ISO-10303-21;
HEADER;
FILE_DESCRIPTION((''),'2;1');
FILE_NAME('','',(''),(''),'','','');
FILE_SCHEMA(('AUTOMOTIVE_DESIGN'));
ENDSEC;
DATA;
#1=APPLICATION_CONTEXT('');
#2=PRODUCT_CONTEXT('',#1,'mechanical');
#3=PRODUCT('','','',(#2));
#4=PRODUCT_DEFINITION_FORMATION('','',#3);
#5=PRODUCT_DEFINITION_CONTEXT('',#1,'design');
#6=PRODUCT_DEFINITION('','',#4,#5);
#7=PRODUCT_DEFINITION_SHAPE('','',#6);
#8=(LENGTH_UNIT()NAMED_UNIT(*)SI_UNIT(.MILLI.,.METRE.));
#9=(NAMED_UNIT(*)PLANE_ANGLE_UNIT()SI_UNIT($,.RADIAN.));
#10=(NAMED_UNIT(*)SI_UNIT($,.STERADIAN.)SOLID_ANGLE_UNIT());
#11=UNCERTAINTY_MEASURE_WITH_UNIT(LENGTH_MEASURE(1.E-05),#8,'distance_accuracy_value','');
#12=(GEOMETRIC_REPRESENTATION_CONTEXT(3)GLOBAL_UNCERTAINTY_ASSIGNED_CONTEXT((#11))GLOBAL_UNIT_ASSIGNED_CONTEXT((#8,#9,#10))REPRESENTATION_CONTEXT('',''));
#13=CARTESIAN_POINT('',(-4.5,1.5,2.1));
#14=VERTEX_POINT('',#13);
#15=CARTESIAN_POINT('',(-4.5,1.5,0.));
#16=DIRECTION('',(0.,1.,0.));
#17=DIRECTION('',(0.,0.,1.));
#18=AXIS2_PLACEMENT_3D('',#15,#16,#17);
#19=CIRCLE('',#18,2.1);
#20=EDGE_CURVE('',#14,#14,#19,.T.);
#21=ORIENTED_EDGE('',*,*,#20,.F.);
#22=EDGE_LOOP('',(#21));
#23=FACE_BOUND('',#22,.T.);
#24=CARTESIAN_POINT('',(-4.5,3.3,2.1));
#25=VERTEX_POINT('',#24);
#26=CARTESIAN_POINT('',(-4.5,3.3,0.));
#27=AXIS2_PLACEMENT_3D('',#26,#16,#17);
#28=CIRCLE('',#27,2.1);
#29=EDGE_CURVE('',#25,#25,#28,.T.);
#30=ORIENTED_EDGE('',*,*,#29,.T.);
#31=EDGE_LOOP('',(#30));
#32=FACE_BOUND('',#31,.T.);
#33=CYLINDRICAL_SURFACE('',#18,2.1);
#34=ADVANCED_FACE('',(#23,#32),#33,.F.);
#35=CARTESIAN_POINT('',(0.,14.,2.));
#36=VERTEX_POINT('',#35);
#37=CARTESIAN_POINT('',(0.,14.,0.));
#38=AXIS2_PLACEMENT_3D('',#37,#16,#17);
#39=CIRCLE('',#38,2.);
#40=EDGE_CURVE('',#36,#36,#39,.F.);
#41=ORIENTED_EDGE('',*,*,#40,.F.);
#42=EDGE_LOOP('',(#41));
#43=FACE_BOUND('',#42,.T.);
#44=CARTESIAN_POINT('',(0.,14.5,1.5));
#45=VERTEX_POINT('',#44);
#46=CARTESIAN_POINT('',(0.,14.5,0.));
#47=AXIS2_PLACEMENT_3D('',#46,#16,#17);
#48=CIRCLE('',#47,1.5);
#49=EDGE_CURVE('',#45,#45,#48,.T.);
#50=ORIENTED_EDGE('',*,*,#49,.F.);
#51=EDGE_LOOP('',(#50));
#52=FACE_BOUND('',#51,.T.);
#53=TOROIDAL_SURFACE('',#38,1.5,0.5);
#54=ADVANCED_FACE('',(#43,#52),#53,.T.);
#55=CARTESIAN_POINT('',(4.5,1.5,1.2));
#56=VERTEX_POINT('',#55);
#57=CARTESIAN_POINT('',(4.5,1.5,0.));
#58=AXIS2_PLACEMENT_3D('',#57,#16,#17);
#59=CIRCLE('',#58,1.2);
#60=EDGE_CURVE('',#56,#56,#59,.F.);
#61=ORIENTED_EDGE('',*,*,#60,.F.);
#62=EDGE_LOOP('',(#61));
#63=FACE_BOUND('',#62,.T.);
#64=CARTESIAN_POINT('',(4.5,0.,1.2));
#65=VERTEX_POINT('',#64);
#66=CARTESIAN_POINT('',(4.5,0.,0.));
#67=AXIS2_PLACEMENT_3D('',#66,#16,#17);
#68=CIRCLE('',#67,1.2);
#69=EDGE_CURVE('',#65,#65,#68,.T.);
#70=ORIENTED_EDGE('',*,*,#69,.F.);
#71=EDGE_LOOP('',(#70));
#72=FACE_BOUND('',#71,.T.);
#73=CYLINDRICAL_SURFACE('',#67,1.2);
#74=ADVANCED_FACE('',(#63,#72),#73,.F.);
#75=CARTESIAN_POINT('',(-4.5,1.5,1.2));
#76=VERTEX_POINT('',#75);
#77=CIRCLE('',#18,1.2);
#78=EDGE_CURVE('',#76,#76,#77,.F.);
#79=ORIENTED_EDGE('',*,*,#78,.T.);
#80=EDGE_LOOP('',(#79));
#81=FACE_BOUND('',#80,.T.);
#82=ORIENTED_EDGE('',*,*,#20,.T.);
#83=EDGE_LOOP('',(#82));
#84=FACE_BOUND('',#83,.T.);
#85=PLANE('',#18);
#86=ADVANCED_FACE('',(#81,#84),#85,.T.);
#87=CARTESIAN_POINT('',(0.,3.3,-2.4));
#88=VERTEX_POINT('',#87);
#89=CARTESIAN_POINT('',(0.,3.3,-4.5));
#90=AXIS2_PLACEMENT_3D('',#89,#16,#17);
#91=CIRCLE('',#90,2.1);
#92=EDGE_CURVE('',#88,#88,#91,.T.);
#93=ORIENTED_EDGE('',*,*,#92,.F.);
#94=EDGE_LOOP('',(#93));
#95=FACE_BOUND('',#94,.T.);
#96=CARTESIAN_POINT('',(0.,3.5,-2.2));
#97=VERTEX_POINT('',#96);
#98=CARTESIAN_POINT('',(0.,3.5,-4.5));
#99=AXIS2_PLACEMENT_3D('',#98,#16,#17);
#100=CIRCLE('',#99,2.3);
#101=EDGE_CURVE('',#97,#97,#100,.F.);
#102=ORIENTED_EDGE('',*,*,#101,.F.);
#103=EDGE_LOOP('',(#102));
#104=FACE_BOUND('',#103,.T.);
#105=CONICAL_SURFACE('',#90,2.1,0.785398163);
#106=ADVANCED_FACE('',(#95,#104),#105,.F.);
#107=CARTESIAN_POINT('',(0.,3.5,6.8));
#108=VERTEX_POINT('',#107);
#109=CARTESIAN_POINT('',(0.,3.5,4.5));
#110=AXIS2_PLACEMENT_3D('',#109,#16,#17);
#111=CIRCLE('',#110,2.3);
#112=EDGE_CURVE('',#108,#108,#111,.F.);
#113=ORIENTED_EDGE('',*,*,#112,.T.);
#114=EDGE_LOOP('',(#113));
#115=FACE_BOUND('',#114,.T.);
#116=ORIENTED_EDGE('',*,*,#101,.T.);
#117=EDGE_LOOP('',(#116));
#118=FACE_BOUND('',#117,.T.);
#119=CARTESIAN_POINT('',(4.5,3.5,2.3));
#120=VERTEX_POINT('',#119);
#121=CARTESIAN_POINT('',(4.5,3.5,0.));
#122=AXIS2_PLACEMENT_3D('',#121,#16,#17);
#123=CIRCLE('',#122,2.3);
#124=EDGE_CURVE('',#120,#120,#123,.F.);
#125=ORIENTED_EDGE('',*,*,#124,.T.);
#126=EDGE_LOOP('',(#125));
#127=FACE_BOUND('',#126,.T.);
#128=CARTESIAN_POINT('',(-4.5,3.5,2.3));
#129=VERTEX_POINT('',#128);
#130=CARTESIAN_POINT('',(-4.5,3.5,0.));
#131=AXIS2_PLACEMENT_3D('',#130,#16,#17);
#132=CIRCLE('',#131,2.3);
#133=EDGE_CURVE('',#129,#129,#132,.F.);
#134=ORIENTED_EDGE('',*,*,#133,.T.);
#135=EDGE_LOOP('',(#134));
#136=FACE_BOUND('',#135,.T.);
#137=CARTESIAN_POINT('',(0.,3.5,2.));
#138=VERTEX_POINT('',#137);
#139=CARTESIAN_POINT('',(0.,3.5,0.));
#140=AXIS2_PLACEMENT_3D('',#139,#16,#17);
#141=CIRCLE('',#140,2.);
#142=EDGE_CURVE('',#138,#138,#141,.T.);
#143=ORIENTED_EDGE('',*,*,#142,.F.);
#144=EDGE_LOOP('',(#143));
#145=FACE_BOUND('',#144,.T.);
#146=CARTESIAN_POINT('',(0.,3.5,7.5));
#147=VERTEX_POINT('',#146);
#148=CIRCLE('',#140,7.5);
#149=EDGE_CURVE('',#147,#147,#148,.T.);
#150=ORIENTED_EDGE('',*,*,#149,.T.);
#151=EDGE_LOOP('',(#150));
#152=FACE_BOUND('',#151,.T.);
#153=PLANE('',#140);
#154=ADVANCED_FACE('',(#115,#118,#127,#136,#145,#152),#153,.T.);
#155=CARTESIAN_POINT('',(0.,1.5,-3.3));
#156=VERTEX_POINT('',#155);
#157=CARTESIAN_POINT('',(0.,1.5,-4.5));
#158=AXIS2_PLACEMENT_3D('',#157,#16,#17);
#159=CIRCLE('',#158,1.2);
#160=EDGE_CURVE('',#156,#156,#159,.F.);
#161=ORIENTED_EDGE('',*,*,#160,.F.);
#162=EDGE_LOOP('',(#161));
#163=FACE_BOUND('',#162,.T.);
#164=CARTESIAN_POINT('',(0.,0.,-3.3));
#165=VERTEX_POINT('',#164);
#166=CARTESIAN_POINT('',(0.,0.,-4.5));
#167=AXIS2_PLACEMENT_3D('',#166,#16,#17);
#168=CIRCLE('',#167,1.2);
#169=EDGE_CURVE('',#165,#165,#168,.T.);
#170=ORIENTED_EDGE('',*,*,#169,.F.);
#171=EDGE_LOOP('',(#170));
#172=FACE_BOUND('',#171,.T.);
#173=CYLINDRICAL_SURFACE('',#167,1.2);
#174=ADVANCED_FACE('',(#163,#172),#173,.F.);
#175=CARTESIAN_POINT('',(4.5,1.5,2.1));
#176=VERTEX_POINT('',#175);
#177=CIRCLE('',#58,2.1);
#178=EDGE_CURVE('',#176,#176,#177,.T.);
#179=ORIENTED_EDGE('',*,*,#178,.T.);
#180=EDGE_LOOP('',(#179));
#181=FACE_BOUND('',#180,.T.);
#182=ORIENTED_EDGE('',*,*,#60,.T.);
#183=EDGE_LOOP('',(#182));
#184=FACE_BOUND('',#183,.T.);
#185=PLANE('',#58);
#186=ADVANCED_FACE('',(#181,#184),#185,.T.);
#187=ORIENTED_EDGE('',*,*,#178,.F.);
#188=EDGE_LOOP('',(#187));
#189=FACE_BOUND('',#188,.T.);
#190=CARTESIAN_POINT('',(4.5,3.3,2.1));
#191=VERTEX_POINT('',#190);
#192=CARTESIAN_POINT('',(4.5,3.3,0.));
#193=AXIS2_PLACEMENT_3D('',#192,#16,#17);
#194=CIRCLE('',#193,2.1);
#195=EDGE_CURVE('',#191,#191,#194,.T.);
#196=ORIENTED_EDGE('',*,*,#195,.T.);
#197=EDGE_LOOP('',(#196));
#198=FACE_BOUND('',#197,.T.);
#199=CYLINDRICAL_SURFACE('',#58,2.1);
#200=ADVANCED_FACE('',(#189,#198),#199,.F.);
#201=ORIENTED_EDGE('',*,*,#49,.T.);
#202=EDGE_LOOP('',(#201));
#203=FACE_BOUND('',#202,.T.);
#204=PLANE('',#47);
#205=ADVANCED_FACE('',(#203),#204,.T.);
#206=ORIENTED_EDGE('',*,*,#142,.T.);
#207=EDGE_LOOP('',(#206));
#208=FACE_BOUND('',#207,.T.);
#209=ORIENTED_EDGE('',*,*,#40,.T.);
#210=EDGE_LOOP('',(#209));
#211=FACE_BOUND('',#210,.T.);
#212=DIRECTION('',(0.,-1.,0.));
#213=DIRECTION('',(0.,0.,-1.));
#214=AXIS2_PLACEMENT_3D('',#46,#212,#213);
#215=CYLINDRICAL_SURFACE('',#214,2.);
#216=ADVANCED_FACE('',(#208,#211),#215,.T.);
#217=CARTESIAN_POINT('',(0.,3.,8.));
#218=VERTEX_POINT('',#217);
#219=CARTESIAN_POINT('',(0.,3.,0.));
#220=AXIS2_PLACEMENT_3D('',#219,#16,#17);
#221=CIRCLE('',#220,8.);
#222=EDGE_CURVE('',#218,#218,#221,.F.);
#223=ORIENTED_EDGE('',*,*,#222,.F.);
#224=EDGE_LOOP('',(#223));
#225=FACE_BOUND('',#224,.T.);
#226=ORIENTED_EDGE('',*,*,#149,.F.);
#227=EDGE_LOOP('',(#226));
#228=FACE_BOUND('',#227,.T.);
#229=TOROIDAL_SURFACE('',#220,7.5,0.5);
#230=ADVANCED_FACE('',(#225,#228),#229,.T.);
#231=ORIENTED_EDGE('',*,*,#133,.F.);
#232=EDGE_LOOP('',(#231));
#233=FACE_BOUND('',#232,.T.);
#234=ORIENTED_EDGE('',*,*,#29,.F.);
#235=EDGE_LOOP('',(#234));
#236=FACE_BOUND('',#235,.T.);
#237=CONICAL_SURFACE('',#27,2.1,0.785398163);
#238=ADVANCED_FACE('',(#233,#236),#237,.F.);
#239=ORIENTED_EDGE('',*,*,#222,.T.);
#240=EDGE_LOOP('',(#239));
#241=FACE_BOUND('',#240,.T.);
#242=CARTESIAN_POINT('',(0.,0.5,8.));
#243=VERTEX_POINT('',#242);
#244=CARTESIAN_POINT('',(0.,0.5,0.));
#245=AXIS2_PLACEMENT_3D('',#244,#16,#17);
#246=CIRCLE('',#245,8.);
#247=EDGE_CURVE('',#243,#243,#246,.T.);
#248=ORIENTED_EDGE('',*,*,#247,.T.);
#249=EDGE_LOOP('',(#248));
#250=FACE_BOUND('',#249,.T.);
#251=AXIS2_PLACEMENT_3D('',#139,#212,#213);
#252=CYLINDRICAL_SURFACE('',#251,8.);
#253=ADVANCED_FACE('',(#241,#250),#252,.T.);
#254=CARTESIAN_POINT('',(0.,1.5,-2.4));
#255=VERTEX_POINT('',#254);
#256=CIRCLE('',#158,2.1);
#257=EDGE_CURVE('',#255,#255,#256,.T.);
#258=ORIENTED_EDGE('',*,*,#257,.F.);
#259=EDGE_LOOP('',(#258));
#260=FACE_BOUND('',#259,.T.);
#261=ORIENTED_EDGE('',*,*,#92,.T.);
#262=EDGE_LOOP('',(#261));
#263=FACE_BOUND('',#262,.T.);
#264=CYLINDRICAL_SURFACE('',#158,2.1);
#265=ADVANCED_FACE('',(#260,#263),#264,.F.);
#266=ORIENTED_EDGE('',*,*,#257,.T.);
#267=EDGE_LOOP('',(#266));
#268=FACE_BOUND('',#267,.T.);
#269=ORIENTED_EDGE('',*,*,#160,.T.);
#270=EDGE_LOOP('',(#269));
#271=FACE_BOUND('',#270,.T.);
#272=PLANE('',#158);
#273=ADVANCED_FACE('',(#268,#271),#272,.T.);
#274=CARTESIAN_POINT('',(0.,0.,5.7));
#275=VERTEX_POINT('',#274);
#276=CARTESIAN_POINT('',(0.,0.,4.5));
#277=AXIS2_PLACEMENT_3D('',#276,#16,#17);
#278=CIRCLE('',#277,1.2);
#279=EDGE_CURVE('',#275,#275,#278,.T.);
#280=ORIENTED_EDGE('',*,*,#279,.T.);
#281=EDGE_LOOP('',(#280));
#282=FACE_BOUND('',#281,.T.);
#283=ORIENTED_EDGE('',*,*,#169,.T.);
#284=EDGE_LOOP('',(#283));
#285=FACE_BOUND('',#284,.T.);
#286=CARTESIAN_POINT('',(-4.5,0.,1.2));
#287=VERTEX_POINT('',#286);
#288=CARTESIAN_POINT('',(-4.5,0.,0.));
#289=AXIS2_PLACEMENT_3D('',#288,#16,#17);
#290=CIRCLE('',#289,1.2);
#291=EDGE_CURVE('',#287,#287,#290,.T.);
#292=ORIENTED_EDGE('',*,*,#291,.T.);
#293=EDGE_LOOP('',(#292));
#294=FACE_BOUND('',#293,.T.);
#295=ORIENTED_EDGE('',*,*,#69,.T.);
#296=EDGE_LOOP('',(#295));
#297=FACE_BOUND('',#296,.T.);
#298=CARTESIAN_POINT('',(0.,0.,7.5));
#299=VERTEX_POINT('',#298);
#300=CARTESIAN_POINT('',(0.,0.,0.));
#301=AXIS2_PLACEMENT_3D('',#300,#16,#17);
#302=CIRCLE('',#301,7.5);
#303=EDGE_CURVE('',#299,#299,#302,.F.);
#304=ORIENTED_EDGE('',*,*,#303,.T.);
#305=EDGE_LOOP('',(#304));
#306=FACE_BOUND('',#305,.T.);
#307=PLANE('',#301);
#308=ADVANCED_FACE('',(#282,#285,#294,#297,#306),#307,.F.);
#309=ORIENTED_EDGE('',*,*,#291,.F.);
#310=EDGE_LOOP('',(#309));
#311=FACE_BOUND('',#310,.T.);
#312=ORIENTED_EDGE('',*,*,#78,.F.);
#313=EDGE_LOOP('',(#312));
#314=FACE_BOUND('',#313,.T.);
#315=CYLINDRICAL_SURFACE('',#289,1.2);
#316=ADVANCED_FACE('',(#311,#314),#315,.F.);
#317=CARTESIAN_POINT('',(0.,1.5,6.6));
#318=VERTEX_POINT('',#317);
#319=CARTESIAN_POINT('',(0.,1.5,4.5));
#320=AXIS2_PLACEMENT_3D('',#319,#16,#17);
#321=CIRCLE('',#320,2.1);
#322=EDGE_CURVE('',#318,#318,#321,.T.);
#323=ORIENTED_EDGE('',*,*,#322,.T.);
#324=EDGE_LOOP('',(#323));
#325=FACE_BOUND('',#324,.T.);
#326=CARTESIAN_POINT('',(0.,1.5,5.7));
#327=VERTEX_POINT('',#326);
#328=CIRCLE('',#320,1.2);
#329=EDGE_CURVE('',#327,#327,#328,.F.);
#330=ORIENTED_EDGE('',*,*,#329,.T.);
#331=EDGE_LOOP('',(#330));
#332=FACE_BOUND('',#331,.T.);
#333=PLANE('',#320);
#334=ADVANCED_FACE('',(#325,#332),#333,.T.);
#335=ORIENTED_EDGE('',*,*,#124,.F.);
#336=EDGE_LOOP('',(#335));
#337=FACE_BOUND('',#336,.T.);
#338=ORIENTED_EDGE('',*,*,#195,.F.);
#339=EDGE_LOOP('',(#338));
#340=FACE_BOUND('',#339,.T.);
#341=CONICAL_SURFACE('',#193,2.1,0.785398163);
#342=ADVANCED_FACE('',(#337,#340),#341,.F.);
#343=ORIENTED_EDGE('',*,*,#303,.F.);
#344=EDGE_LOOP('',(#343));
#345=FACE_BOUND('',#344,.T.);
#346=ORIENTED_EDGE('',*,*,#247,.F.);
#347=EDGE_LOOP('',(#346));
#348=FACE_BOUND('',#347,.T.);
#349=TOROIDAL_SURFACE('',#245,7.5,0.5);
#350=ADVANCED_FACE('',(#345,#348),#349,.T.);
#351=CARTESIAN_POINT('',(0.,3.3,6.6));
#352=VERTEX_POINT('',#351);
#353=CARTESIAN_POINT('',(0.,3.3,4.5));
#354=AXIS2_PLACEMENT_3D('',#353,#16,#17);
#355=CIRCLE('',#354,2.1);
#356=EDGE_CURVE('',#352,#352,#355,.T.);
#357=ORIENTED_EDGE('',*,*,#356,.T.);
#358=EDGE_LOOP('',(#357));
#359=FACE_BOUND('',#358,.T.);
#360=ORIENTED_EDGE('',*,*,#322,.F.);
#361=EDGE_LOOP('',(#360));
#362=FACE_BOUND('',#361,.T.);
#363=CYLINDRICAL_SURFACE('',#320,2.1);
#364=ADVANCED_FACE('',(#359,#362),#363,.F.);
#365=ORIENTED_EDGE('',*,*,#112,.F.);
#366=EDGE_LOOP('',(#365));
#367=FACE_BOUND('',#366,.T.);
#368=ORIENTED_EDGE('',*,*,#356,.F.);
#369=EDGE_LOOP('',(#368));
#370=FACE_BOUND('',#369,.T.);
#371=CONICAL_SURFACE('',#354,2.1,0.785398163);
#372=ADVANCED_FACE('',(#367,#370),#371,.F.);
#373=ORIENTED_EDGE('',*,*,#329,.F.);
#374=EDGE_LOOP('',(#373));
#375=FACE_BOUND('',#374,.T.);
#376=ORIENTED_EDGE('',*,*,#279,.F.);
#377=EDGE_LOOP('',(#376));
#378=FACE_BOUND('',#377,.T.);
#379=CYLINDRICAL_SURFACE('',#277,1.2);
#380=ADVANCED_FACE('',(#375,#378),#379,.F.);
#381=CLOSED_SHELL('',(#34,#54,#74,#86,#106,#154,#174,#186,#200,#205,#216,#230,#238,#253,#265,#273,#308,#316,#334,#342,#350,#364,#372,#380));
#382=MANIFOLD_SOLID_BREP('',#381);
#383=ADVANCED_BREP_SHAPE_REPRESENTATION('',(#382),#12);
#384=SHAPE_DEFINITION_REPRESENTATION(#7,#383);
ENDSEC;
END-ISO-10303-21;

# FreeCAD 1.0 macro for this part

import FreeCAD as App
import Part
import Sketcher
from FreeCAD import Vector
Q = App.Units.Quantity


def edges_at(feature, points):
    """Names of the edges that pass closest to the given points."""
    edges = feature.Shape.Edges
    near = lambda p: min(range(len(edges)), key=lambda i: edges[i].distToShape(Part.Vertex(*p))[0])
    return sorted({f"Edge{near(p) + 1}" for p in points})

doc = App.newDocument("Part")
params = doc.addObject("Spreadsheet::Sheet", "Params")
for row, (alias, value) in enumerate([
    ("sketch1_diameter", "16 mm"),
    ("pad1_length", "3.5 mm"),
    ("sketch2_diameter", "4 mm"),
    ("pad2_length", "11 mm"),
    ("sketch3_diameter", "2.4 mm"),
    ("sketch4_diameter", "4.2 mm"),
    ("pocket2_length", "2 mm"),
    ("chamfer_size", "0.2 mm"),
    ("fillet_radius", "0.5 mm"),
    ("fillet2_radius", "0.5 mm"),
], start=1):
    params.set(f"A{row}", alias)
    params.set(f"B{row}", "=" + value)
    params.setAlias(f"B{row}", alias)

body = doc.addObject("PartDesign::Body", "Body")

sketch1 = body.newObject("Sketcher::SketchObject", "Sketch")
sketch1.AttachmentSupport = (doc.getObject("XZ_Plane"), [""])
sketch1.MapMode = "FlatFace"
sketch1.addGeometry(Part.Circle(Vector(0, 0, 0), Vector(0, 0, 1), 8), False)
sketch1.addConstraint([
    Sketcher.Constraint("Coincident", 0, 3, -1, 1),
    Sketcher.Constraint("Diameter", 0, Q("16 mm")),
])
sketch1.setExpression("Constraints[1]", "Params.sketch1_diameter")
pad1 = body.newObject("PartDesign::Pad", "Pad")
pad1.Profile = sketch1
pad1.setExpression("Length", "Params.pad1_length")
pad1.Reversed = True

sketch2 = body.newObject("Sketcher::SketchObject", "Sketch001")
sketch2.AttachmentSupport = (doc.getObject("XZ_Plane"), [""])
sketch2.MapMode = "FlatFace"
sketch2.AttachmentOffset = App.Placement(Vector(0, 0, -3.5), App.Rotation())
sketch2.addGeometry(Part.Circle(Vector(0, 0, 0), Vector(0, 0, 1), 2), False)
sketch2.addConstraint([
    Sketcher.Constraint("Coincident", 0, 3, -1, 1),
    Sketcher.Constraint("Diameter", 0, Q("4 mm")),
])
sketch2.setExpression("Constraints[1]", "Params.sketch2_diameter")
pad2 = body.newObject("PartDesign::Pad", "Pad001")
pad2.Profile = sketch2
pad2.setExpression("Length", "Params.pad2_length")
pad2.Reversed = True

sketch3 = body.newObject("Sketcher::SketchObject", "Sketch002")
sketch3.AttachmentSupport = (doc.getObject("XZ_Plane"), [""])
sketch3.MapMode = "FlatFace"
sketch3.AttachmentOffset = App.Placement(Vector(0, 0, -3.5), App.Rotation())
sketch3.addGeometry([
    Part.Circle(Vector(0, -4.5, 0), Vector(0, 0, 1), 1.2),
    Part.Circle(Vector(4.5, 0, 0), Vector(0, 0, 1), 1.2),
    Part.Circle(Vector(0, 4.5, 0), Vector(0, 0, 1), 1.2),
    Part.Circle(Vector(-4.5, 0, 0), Vector(0, 0, 1), 1.2),
], False)
sketch3.addConstraint([
    Sketcher.Constraint("Equal", 0, 1),
    Sketcher.Constraint("Equal", 1, 2),
    Sketcher.Constraint("Equal", 2, 3),
    Sketcher.Constraint("Symmetric", 0, 3, 2, 3, -1, 1),
    Sketcher.Constraint("Symmetric", 1, 3, 3, 3, -1, 1),
    Sketcher.Constraint("PointOnObject", 0, 3, -2),
    Sketcher.Constraint("PointOnObject", 1, 3, -1),
    Sketcher.Constraint("Diameter", 0, Q("2.4 mm")),
    Sketcher.Constraint("DistanceY", 0, 3, 2, 3, Q("9 mm")),
    Sketcher.Constraint("DistanceX", 3, 3, 1, 3, Q("9 mm")),
])
sketch3.setExpression("Constraints[7]", "Params.sketch3_diameter")
pocket1 = body.newObject("PartDesign::Pocket", "Pocket")
pocket1.Profile = sketch3
pocket1.Type = "ThroughAll"
pocket1.Reversed = True

sketch4 = body.newObject("Sketcher::SketchObject", "Sketch003")
sketch4.AttachmentSupport = (doc.getObject("XZ_Plane"), [""])
sketch4.MapMode = "FlatFace"
sketch4.AttachmentOffset = App.Placement(Vector(0, 0, -3.5), App.Rotation())
sketch4.addGeometry([
    Part.Circle(Vector(0, -4.5, 0), Vector(0, 0, 1), 2.1),
    Part.Circle(Vector(4.5, 0, 0), Vector(0, 0, 1), 2.1),
    Part.Circle(Vector(0, 4.5, 0), Vector(0, 0, 1), 2.1),
    Part.Circle(Vector(-4.5, 0, 0), Vector(0, 0, 1), 2.1),
], False)
sketch4.addConstraint([
    Sketcher.Constraint("Equal", 0, 1),
    Sketcher.Constraint("Equal", 1, 2),
    Sketcher.Constraint("Equal", 2, 3),
    Sketcher.Constraint("Symmetric", 0, 3, 2, 3, -1, 1),
    Sketcher.Constraint("Symmetric", 1, 3, 3, 3, -1, 1),
    Sketcher.Constraint("PointOnObject", 0, 3, -2),
    Sketcher.Constraint("PointOnObject", 1, 3, -1),
    Sketcher.Constraint("Diameter", 0, Q("4.2 mm")),
    Sketcher.Constraint("DistanceY", 0, 3, 2, 3, Q("9 mm")),
    Sketcher.Constraint("DistanceX", 3, 3, 1, 3, Q("9 mm")),
])
sketch4.setExpression("Constraints[7]", "Params.sketch4_diameter")
pocket2 = body.newObject("PartDesign::Pocket", "Pocket001")
pocket2.Profile = sketch4
pocket2.setExpression("Length", "Params.pocket2_length")
pocket2.Reversed = True
doc.recompute()

chamfer = body.newObject("PartDesign::Chamfer", "Chamfer")
chamfer.Base = (pocket2, edges_at(pocket2, [
    (-2.1, 3.5, -4.5),
    (2.4, 3.5, 0),
    (-2.1, 3.5, 4.5),
    (-6.6, 3.5, 0),
]))
chamfer.setExpression("Size", "Params.chamfer_size")
doc.recompute()

fillet = body.newObject("PartDesign::Fillet", "Fillet")
fillet.Base = (chamfer, edges_at(chamfer, [(-2, 14.5, 0)]))
fillet.setExpression("Radius", "Params.fillet_radius")
doc.recompute()

fillet2 = body.newObject("PartDesign::Fillet", "Fillet001")
fillet2.Base = (fillet, edges_at(fillet, [(-8, 0, 0), (-8, 3.5, 0)]))
fillet2.setExpression("Radius", "Params.fillet2_radius")

doc.recompute()
